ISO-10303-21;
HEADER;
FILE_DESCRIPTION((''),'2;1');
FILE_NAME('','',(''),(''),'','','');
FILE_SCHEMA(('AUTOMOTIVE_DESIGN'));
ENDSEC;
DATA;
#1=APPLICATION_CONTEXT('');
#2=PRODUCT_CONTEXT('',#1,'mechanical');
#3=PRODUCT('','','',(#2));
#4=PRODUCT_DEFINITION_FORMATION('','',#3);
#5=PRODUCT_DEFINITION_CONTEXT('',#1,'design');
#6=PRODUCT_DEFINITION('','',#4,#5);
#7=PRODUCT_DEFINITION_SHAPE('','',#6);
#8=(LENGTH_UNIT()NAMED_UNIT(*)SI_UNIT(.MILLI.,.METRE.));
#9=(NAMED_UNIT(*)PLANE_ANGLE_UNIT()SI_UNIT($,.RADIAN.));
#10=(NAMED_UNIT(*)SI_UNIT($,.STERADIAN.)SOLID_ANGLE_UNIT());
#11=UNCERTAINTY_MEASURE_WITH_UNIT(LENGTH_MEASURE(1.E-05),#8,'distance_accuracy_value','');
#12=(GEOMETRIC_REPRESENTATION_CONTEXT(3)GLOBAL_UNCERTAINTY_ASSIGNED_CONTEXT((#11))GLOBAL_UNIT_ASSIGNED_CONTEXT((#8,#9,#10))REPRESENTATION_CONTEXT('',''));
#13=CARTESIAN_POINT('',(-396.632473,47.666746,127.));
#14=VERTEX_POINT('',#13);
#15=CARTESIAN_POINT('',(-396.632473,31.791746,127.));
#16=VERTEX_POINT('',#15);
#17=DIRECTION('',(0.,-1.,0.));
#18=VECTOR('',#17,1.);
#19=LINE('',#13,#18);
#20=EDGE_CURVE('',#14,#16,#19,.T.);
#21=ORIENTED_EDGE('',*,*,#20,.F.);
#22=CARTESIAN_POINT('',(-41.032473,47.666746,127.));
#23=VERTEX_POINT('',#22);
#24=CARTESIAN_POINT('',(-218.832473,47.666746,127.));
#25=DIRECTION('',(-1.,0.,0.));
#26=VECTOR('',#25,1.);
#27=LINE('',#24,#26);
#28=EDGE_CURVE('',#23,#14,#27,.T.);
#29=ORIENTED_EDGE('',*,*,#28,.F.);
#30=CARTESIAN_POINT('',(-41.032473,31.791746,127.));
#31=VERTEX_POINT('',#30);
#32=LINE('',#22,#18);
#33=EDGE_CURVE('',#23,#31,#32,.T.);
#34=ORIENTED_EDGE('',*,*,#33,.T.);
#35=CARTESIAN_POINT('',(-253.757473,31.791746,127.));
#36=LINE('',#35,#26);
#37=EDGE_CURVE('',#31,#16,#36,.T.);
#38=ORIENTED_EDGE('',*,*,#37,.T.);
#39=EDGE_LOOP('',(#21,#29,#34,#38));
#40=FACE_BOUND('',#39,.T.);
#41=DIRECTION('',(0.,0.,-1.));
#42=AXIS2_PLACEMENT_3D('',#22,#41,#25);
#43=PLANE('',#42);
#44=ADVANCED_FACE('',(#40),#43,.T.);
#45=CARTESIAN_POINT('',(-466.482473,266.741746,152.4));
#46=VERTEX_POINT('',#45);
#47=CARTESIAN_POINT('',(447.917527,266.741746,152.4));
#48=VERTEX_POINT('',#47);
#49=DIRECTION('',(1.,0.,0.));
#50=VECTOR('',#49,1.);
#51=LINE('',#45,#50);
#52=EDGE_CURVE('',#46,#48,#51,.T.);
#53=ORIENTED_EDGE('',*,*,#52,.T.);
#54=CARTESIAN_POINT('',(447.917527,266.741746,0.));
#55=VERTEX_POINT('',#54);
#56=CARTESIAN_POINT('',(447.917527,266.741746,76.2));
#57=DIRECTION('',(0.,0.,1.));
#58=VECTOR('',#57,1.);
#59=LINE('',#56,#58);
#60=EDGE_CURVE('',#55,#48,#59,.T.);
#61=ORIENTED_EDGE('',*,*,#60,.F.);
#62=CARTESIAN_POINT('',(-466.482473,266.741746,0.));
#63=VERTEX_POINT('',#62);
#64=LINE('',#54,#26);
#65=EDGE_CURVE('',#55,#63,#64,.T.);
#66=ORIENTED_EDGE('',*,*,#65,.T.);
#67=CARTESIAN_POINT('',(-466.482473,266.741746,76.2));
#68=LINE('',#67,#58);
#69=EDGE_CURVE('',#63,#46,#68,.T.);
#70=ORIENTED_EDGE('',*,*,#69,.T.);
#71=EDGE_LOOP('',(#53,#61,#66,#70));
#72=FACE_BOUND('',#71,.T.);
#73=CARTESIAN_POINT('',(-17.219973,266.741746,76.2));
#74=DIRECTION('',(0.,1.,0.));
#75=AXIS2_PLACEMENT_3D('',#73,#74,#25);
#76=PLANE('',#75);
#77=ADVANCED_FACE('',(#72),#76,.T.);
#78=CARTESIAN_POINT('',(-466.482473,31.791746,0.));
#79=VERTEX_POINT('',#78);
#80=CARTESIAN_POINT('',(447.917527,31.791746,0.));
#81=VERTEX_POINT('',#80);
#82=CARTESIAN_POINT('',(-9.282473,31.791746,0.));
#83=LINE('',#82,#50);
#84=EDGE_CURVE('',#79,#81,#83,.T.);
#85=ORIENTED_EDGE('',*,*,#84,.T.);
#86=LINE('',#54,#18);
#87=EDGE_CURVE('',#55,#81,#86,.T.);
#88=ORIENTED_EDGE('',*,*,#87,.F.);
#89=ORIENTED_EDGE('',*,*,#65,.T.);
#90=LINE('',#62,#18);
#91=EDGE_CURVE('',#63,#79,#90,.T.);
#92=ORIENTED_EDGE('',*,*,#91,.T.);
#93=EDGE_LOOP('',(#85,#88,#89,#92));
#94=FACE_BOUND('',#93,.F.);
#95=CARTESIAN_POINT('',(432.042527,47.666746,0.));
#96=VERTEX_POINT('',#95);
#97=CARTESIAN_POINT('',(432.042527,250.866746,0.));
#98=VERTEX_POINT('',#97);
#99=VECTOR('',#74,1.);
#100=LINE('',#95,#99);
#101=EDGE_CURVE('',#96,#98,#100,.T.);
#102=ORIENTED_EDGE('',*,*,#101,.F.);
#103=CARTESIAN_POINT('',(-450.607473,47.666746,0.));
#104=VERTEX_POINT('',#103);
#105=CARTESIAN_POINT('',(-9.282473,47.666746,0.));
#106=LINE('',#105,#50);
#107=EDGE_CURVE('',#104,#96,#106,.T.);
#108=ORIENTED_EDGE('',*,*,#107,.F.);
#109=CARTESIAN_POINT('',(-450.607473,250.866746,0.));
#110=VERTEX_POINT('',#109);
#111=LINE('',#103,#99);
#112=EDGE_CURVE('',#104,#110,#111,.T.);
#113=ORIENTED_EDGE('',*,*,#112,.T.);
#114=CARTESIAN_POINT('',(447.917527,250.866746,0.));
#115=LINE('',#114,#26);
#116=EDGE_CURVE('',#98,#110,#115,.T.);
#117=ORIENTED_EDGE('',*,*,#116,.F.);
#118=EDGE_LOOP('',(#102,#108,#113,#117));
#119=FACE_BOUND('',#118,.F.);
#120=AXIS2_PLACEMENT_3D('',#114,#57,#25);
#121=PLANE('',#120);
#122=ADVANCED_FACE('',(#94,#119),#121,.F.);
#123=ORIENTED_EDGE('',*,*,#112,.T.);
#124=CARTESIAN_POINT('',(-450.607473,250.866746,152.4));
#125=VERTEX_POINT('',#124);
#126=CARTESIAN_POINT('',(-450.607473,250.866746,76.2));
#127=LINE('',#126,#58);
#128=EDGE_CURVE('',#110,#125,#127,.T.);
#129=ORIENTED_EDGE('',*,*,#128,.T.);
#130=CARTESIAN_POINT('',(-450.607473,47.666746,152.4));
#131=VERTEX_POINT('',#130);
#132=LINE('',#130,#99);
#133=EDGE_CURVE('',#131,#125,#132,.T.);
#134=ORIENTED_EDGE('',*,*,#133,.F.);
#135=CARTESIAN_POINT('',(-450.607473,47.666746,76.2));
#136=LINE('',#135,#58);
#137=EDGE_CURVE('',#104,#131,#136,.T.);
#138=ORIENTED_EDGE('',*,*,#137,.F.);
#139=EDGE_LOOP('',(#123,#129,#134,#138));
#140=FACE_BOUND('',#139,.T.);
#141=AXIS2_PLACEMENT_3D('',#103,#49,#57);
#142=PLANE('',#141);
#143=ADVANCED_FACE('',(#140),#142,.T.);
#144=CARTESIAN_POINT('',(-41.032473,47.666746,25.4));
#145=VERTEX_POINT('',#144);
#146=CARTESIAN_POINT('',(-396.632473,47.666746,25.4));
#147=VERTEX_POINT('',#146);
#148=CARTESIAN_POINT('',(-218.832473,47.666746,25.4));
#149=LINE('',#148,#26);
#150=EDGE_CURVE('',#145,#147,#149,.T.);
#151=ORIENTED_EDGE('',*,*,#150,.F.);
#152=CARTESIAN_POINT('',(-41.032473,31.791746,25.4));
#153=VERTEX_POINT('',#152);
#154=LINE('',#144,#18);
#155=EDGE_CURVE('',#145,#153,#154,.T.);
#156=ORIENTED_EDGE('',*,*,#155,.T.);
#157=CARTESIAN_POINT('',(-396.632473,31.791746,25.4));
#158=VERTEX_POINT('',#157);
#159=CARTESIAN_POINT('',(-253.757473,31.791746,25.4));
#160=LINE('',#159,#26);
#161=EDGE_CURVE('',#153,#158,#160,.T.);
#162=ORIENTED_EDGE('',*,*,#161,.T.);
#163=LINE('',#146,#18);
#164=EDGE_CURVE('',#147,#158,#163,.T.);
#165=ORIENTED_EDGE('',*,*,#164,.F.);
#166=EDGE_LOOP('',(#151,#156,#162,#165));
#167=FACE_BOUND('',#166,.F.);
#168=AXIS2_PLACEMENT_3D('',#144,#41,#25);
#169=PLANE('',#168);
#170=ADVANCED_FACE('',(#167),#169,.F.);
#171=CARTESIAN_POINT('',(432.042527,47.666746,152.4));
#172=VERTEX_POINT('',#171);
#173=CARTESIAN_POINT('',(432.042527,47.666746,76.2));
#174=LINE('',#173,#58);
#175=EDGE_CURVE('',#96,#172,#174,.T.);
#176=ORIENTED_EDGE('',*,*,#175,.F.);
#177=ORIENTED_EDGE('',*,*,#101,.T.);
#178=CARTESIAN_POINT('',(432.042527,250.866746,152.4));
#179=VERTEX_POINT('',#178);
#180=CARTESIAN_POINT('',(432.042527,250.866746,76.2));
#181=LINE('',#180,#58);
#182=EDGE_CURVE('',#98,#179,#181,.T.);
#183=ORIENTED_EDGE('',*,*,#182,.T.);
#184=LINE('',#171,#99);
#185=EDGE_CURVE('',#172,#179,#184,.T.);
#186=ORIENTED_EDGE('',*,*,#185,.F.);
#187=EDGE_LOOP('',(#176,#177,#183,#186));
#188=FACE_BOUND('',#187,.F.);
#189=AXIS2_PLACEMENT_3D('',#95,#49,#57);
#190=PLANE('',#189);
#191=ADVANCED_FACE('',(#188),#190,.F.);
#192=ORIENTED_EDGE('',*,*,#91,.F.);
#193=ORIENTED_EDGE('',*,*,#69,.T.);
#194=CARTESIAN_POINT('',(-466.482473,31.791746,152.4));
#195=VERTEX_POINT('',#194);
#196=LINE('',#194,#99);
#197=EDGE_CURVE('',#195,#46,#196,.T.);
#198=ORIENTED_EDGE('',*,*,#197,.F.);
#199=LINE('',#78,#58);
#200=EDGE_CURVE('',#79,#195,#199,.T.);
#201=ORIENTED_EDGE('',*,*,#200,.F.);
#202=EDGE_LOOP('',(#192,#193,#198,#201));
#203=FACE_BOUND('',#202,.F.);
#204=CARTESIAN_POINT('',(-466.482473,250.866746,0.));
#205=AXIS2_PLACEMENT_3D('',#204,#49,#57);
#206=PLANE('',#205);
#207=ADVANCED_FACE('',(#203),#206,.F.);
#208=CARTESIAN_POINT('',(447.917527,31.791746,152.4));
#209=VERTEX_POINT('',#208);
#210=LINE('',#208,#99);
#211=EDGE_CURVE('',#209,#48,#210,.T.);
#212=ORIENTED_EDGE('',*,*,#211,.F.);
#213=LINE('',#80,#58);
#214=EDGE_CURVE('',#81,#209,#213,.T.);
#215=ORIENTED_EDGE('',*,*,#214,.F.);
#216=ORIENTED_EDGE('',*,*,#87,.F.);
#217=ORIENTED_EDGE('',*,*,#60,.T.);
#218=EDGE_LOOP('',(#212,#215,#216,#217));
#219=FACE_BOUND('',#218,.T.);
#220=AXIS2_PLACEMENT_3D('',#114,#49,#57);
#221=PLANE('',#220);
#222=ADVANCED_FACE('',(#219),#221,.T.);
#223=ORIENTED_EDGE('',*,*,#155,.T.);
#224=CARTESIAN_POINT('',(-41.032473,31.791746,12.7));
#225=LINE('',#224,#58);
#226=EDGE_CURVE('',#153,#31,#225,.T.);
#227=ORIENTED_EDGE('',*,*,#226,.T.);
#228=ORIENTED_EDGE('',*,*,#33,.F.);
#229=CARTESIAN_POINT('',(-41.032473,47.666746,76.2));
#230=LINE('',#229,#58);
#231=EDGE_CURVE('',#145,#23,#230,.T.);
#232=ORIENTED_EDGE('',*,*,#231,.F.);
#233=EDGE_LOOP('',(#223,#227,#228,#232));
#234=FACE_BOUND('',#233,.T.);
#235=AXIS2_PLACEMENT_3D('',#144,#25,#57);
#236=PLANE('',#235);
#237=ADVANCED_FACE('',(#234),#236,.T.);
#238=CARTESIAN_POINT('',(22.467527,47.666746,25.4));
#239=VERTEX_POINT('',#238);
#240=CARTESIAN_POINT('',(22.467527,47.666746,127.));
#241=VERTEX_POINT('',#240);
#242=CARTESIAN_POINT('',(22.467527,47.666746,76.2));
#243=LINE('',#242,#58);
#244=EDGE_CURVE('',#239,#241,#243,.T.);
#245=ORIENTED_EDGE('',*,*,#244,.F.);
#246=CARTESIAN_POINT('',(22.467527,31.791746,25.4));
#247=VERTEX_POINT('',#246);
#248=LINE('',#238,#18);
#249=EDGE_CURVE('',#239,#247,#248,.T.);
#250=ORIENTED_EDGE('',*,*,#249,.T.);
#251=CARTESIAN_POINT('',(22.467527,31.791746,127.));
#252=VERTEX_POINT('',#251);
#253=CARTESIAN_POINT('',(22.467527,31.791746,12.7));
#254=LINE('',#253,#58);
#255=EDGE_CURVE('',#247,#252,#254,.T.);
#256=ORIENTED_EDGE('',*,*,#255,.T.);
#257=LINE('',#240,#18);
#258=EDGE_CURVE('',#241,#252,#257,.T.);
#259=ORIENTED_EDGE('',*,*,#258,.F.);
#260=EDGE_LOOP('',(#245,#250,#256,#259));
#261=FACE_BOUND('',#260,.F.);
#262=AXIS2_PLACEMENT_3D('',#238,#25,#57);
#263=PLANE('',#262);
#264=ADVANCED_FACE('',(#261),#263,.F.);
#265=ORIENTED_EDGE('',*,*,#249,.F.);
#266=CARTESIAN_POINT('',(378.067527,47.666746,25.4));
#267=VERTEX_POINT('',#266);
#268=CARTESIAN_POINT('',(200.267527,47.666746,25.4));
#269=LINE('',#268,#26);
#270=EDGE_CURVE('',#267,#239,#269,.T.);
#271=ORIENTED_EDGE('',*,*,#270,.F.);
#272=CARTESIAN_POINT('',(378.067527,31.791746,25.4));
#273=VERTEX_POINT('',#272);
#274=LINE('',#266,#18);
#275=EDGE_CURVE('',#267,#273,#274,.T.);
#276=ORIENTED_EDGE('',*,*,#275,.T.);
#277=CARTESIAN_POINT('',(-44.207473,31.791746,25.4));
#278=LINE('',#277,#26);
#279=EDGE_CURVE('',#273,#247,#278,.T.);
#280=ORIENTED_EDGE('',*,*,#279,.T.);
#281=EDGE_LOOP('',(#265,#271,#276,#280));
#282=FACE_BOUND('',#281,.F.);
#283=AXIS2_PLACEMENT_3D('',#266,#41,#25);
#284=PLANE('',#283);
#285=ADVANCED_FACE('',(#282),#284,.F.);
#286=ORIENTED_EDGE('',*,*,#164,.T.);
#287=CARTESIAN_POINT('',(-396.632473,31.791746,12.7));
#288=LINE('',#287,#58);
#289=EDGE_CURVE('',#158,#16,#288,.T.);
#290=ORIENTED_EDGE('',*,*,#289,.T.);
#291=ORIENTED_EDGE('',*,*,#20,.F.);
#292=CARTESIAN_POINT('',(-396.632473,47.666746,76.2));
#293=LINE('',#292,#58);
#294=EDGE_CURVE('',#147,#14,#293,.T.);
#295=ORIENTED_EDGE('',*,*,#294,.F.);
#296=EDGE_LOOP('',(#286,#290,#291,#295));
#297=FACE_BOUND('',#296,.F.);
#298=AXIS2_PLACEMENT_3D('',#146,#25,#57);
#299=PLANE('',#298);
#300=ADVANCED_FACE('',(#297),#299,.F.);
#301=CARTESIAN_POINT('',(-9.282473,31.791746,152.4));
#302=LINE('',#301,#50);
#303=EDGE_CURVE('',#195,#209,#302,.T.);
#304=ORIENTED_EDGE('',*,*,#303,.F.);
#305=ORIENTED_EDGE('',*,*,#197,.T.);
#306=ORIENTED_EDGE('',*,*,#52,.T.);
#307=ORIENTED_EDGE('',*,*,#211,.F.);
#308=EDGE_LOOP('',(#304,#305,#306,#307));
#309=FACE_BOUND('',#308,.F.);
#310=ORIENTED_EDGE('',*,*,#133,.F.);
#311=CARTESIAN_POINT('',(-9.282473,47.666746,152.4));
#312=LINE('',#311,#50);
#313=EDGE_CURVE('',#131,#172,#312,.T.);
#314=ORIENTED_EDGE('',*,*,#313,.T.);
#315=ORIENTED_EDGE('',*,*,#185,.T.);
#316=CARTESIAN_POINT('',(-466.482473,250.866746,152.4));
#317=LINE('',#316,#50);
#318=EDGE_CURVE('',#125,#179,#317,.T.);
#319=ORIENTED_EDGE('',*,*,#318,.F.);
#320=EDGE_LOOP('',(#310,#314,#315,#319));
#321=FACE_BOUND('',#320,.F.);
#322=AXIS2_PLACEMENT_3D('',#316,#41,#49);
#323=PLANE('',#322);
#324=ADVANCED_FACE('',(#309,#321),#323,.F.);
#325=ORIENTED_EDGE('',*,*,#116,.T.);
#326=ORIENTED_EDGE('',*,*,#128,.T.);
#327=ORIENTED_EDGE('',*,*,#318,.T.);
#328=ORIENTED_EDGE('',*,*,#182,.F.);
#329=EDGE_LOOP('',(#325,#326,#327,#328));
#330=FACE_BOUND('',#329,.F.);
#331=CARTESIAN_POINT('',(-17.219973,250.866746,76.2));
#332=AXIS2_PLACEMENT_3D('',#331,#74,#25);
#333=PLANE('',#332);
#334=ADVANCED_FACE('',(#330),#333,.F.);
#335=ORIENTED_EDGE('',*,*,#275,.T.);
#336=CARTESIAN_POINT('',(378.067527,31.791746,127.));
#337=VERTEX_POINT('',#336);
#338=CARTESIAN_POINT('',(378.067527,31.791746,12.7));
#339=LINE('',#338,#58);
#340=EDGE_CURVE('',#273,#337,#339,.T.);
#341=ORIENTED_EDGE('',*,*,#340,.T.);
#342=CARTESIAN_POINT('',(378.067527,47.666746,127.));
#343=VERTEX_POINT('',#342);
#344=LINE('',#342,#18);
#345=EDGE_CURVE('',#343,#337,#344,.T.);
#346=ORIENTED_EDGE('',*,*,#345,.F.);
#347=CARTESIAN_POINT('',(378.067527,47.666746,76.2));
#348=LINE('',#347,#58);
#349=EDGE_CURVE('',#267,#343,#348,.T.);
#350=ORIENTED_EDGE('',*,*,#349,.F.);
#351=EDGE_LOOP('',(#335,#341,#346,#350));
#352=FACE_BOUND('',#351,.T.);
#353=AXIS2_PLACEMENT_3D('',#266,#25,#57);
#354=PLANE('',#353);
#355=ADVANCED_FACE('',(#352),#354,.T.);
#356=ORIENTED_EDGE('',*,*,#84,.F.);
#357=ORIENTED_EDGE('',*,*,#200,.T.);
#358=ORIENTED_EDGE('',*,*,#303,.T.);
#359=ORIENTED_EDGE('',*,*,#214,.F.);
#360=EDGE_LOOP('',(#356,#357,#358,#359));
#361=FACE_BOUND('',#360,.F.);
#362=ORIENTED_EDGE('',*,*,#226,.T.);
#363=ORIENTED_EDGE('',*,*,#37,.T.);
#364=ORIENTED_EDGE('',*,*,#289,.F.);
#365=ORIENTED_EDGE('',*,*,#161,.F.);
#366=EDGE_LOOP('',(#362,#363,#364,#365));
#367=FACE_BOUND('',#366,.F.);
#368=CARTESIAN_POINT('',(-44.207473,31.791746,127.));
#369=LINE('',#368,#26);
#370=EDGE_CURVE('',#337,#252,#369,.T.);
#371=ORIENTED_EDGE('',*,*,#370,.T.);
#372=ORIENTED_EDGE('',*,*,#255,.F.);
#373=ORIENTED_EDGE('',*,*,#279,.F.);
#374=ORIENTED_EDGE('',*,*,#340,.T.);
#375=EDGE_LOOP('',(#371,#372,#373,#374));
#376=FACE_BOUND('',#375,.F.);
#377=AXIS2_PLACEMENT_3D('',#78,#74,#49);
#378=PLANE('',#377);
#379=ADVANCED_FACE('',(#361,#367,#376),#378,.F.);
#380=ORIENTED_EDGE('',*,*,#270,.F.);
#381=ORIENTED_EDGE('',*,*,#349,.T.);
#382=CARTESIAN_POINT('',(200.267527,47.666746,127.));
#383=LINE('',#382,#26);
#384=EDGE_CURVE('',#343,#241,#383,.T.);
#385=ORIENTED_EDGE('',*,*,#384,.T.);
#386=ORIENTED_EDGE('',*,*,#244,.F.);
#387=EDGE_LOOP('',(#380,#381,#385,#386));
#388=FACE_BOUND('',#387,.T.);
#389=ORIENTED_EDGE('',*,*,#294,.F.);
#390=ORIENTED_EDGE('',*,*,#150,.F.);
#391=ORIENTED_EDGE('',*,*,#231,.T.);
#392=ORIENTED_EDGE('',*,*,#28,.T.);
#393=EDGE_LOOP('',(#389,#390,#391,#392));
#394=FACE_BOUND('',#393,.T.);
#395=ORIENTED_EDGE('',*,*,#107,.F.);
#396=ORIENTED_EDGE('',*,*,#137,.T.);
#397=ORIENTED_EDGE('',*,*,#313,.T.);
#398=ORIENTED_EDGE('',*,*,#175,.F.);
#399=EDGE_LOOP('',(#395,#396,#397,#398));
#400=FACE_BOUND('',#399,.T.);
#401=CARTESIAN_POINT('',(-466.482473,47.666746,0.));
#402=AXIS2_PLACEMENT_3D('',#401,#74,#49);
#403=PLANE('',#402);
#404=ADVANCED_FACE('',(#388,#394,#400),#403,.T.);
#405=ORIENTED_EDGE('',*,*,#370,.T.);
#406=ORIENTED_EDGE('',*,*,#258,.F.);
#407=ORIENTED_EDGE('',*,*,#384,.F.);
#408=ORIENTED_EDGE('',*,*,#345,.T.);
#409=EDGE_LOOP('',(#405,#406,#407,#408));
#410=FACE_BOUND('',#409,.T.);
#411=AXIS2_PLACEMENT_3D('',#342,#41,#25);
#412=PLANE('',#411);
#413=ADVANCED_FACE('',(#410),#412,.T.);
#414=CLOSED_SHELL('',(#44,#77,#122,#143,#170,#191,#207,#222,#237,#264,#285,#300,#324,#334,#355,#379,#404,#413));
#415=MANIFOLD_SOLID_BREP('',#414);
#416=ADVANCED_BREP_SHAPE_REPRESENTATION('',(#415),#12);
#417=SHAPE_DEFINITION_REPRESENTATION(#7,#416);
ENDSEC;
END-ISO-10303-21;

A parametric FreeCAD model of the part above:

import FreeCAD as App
import Part
import Sketcher

V = App.Vector
Q = App.Units.Quantity


def add_polygon(sketch, points):
    """Adds a closed chain of lines whose ends are joined by coincident constraints."""
    first, n = sketch.GeometryCount, len(points)
    for a, b in zip(points, points[1:] + points[:1]):
        sketch.addGeometry(Part.LineSegment(App.Vector(*a, 0), App.Vector(*b, 0)), False)
    for i in range(n):
        sketch.addConstraint(Sketcher.Constraint("Coincident", first + i, 2, first + (i + 1) % n, 1))

doc = App.newDocument("Part")
body = doc.addObject("PartDesign::Body", "Body")

sketch1 = doc.addObject("Sketcher::SketchObject", "Sketch")
body.addObject(sketch1)
sketch1.AttachmentSupport = (doc.XY_Plane, [""])
sketch1.MapMode = "FlatFace"
add_polygon(sketch1, [(-466, 48), (-466, 32), (448, 32), (448, 48)])
sketch1.addConstraint(Sketcher.Constraint("Vertical", 0))
sketch1.addConstraint(Sketcher.Constraint("Horizontal", 1))
sketch1.addConstraint(Sketcher.Constraint("Vertical", 2))
sketch1.addConstraint(Sketcher.Constraint("Horizontal", 3))
sketch1.addConstraint(Sketcher.Constraint("DistanceX", 1, 1, 1, 2, Q("36 in")))
sketch1.addConstraint(Sketcher.Constraint("DistanceY", 0, 2, 0, 1, Q("0.625 in")))
sketch1.addConstraint(Sketcher.Constraint("DistanceX", 0, 2, -1, 1, Q("466.482473 mm")))
sketch1.addConstraint(Sketcher.Constraint("DistanceY", -1, 1, 0, 2, Q("31.791746 mm")))
pad1 = doc.addObject("PartDesign::Pad", "Pad")
body.addObject(pad1)
pad1.Profile = sketch1
pad1.Length = Q("6 in")

sketch2 = doc.addObject("Sketcher::SketchObject", "Sketch001")
body.addObject(sketch2)
sketch2.AttachmentSupport = (doc.XZ_Plane, [""])
sketch2.MapMode = "FlatFace"
sketch2.AttachmentOffset = App.Placement(V(0, 0, -47.666746), App.Rotation())
add_polygon(sketch2, [(378, 127), (378, 25), (22, 25), (22, 127)])
add_polygon(sketch2, [(-41, 127), (-41, 25), (-397, 25), (-397, 127)])
sketch2.addConstraint(Sketcher.Constraint("Vertical", 0))
sketch2.addConstraint(Sketcher.Constraint("Horizontal", 1))
sketch2.addConstraint(Sketcher.Constraint("Vertical", 2))
sketch2.addConstraint(Sketcher.Constraint("Horizontal", 3))
sketch2.addConstraint(Sketcher.Constraint("Vertical", 4))
sketch2.addConstraint(Sketcher.Constraint("Horizontal", 5))
sketch2.addConstraint(Sketcher.Constraint("Vertical", 6))
sketch2.addConstraint(Sketcher.Constraint("Horizontal", 7))
sketch2.addConstraint(Sketcher.Constraint("Horizontal", 1, 2, 4, 2))
sketch2.addConstraint(Sketcher.Constraint("Horizontal", 3, 2, 6, 2))
sketch2.addConstraint(Sketcher.Constraint("Equal", 3, 5))
sketch2.addConstraint(Sketcher.Constraint("DistanceX", 1, 2, 1, 1, Q("14 in")))
sketch2.addConstraint(Sketcher.Constraint("DistanceY", 0, 2, 0, 1, Q("4 in")))
sketch2.addConstraint(Sketcher.Constraint("DistanceY", -1, 1, 0, 2, Q("1 in")))
sketch2.addConstraint(Sketcher.Constraint("DistanceX", 4, 2, 1, 2, Q("2.5 in")))
sketch2.addConstraint(Sketcher.Constraint("DistanceX", -1, 1, 0, 2, Q("378.067527 mm")))
pocket1 = doc.addObject("PartDesign::Pocket", "Pocket")
body.addObject(pocket1)
pocket1.Profile = sketch2
pocket1.Length = Q("1 in")
pocket1.Reversed = True

sketch3 = doc.addObject("Sketcher::SketchObject", "Sketch002")
body.addObject(sketch3)
sketch3.AttachmentSupport = (doc.XZ_Plane, [""])
sketch3.MapMode = "FlatFace"
sketch3.AttachmentOffset = App.Placement(V(0, 0, -47.666746), App.Rotation())
add_polygon(sketch3, [(448, 152), (448, 0), (432, 0), (432, 152)])
add_polygon(sketch3, [(-451, 152), (-451, 0), (-466, 0), (-466, 152)])
sketch3.addConstraint(Sketcher.Constraint("Vertical", 0))
sketch3.addConstraint(Sketcher.Constraint("Horizontal", 1))
sketch3.addConstraint(Sketcher.Constraint("Vertical", 2))
sketch3.addConstraint(Sketcher.Constraint("Horizontal", 3))
sketch3.addConstraint(Sketcher.Constraint("Vertical", 4))
sketch3.addConstraint(Sketcher.Constraint("Horizontal", 5))
sketch3.addConstraint(Sketcher.Constraint("Vertical", 6))
sketch3.addConstraint(Sketcher.Constraint("Horizontal", 7))
sketch3.addConstraint(Sketcher.Constraint("PointOnObject", 0, 2, -1))
sketch3.addConstraint(Sketcher.Constraint("PointOnObject", 4, 2, -1))
sketch3.addConstraint(Sketcher.Constraint("Horizontal", 3, 2, 6, 2))
sketch3.addConstraint(Sketcher.Constraint("Equal", 3, 5))
sketch3.addConstraint(Sketcher.Constraint("DistanceY", 0, 2, 0, 1, Q("6 in")))
sketch3.addConstraint(Sketcher.Constraint("DistanceX", 5, 2, 0, 2, Q("36 in")))
sketch3.addConstraint(Sketcher.Constraint("DistanceX", 1, 2, 1, 1, Q("0.625 in")))
sketch3.addConstraint(Sketcher.Constraint("DistanceX", -1, 1, 0, 2, Q("447.917527 mm")))
pad2 = doc.addObject("PartDesign::Pad", "Pad001")
body.addObject(pad2)
pad2.Profile = sketch3
pad2.Length = Q("8 in")
pad2.Reversed = True

sketch4 = doc.addObject("Sketcher::SketchObject", "Sketch003")
body.addObject(sketch4)
sketch4.AttachmentSupport = (doc.XZ_Plane, [""])
sketch4.MapMode = "FlatFace"
sketch4.AttachmentOffset = App.Placement(V(0, 0, -250.866746), App.Rotation())
add_polygon(sketch4, [(-466, 0), (-466, 152), (448, 152), (448, 0)])
sketch4.addConstraint(Sketcher.Constraint("Vertical", 0))
sketch4.addConstraint(Sketcher.Constraint("Horizontal", 1))
sketch4.addConstraint(Sketcher.Constraint("Vertical", 2))
sketch4.addConstraint(Sketcher.Constraint("Horizontal", 3))
sketch4.addConstraint(Sketcher.Constraint("PointOnObject", 2, 2, -1))
sketch4.addConstraint(Sketcher.Constraint("DistanceX", 1, 1, 1, 2, Q("36 in")))
sketch4.addConstraint(Sketcher.Constraint("DistanceY", 0, 1, 0, 2, Q("6 in")))
sketch4.addConstraint(Sketcher.Constraint("DistanceX", 0, 2, -1, 1, Q("466.482473 mm")))
pad3 = doc.addObject("PartDesign::Pad", "Pad002")
body.addObject(pad3)
pad3.Profile = sketch4
pad3.Length = Q("0.625 in")
pad3.Reversed = True

doc.recompute()
